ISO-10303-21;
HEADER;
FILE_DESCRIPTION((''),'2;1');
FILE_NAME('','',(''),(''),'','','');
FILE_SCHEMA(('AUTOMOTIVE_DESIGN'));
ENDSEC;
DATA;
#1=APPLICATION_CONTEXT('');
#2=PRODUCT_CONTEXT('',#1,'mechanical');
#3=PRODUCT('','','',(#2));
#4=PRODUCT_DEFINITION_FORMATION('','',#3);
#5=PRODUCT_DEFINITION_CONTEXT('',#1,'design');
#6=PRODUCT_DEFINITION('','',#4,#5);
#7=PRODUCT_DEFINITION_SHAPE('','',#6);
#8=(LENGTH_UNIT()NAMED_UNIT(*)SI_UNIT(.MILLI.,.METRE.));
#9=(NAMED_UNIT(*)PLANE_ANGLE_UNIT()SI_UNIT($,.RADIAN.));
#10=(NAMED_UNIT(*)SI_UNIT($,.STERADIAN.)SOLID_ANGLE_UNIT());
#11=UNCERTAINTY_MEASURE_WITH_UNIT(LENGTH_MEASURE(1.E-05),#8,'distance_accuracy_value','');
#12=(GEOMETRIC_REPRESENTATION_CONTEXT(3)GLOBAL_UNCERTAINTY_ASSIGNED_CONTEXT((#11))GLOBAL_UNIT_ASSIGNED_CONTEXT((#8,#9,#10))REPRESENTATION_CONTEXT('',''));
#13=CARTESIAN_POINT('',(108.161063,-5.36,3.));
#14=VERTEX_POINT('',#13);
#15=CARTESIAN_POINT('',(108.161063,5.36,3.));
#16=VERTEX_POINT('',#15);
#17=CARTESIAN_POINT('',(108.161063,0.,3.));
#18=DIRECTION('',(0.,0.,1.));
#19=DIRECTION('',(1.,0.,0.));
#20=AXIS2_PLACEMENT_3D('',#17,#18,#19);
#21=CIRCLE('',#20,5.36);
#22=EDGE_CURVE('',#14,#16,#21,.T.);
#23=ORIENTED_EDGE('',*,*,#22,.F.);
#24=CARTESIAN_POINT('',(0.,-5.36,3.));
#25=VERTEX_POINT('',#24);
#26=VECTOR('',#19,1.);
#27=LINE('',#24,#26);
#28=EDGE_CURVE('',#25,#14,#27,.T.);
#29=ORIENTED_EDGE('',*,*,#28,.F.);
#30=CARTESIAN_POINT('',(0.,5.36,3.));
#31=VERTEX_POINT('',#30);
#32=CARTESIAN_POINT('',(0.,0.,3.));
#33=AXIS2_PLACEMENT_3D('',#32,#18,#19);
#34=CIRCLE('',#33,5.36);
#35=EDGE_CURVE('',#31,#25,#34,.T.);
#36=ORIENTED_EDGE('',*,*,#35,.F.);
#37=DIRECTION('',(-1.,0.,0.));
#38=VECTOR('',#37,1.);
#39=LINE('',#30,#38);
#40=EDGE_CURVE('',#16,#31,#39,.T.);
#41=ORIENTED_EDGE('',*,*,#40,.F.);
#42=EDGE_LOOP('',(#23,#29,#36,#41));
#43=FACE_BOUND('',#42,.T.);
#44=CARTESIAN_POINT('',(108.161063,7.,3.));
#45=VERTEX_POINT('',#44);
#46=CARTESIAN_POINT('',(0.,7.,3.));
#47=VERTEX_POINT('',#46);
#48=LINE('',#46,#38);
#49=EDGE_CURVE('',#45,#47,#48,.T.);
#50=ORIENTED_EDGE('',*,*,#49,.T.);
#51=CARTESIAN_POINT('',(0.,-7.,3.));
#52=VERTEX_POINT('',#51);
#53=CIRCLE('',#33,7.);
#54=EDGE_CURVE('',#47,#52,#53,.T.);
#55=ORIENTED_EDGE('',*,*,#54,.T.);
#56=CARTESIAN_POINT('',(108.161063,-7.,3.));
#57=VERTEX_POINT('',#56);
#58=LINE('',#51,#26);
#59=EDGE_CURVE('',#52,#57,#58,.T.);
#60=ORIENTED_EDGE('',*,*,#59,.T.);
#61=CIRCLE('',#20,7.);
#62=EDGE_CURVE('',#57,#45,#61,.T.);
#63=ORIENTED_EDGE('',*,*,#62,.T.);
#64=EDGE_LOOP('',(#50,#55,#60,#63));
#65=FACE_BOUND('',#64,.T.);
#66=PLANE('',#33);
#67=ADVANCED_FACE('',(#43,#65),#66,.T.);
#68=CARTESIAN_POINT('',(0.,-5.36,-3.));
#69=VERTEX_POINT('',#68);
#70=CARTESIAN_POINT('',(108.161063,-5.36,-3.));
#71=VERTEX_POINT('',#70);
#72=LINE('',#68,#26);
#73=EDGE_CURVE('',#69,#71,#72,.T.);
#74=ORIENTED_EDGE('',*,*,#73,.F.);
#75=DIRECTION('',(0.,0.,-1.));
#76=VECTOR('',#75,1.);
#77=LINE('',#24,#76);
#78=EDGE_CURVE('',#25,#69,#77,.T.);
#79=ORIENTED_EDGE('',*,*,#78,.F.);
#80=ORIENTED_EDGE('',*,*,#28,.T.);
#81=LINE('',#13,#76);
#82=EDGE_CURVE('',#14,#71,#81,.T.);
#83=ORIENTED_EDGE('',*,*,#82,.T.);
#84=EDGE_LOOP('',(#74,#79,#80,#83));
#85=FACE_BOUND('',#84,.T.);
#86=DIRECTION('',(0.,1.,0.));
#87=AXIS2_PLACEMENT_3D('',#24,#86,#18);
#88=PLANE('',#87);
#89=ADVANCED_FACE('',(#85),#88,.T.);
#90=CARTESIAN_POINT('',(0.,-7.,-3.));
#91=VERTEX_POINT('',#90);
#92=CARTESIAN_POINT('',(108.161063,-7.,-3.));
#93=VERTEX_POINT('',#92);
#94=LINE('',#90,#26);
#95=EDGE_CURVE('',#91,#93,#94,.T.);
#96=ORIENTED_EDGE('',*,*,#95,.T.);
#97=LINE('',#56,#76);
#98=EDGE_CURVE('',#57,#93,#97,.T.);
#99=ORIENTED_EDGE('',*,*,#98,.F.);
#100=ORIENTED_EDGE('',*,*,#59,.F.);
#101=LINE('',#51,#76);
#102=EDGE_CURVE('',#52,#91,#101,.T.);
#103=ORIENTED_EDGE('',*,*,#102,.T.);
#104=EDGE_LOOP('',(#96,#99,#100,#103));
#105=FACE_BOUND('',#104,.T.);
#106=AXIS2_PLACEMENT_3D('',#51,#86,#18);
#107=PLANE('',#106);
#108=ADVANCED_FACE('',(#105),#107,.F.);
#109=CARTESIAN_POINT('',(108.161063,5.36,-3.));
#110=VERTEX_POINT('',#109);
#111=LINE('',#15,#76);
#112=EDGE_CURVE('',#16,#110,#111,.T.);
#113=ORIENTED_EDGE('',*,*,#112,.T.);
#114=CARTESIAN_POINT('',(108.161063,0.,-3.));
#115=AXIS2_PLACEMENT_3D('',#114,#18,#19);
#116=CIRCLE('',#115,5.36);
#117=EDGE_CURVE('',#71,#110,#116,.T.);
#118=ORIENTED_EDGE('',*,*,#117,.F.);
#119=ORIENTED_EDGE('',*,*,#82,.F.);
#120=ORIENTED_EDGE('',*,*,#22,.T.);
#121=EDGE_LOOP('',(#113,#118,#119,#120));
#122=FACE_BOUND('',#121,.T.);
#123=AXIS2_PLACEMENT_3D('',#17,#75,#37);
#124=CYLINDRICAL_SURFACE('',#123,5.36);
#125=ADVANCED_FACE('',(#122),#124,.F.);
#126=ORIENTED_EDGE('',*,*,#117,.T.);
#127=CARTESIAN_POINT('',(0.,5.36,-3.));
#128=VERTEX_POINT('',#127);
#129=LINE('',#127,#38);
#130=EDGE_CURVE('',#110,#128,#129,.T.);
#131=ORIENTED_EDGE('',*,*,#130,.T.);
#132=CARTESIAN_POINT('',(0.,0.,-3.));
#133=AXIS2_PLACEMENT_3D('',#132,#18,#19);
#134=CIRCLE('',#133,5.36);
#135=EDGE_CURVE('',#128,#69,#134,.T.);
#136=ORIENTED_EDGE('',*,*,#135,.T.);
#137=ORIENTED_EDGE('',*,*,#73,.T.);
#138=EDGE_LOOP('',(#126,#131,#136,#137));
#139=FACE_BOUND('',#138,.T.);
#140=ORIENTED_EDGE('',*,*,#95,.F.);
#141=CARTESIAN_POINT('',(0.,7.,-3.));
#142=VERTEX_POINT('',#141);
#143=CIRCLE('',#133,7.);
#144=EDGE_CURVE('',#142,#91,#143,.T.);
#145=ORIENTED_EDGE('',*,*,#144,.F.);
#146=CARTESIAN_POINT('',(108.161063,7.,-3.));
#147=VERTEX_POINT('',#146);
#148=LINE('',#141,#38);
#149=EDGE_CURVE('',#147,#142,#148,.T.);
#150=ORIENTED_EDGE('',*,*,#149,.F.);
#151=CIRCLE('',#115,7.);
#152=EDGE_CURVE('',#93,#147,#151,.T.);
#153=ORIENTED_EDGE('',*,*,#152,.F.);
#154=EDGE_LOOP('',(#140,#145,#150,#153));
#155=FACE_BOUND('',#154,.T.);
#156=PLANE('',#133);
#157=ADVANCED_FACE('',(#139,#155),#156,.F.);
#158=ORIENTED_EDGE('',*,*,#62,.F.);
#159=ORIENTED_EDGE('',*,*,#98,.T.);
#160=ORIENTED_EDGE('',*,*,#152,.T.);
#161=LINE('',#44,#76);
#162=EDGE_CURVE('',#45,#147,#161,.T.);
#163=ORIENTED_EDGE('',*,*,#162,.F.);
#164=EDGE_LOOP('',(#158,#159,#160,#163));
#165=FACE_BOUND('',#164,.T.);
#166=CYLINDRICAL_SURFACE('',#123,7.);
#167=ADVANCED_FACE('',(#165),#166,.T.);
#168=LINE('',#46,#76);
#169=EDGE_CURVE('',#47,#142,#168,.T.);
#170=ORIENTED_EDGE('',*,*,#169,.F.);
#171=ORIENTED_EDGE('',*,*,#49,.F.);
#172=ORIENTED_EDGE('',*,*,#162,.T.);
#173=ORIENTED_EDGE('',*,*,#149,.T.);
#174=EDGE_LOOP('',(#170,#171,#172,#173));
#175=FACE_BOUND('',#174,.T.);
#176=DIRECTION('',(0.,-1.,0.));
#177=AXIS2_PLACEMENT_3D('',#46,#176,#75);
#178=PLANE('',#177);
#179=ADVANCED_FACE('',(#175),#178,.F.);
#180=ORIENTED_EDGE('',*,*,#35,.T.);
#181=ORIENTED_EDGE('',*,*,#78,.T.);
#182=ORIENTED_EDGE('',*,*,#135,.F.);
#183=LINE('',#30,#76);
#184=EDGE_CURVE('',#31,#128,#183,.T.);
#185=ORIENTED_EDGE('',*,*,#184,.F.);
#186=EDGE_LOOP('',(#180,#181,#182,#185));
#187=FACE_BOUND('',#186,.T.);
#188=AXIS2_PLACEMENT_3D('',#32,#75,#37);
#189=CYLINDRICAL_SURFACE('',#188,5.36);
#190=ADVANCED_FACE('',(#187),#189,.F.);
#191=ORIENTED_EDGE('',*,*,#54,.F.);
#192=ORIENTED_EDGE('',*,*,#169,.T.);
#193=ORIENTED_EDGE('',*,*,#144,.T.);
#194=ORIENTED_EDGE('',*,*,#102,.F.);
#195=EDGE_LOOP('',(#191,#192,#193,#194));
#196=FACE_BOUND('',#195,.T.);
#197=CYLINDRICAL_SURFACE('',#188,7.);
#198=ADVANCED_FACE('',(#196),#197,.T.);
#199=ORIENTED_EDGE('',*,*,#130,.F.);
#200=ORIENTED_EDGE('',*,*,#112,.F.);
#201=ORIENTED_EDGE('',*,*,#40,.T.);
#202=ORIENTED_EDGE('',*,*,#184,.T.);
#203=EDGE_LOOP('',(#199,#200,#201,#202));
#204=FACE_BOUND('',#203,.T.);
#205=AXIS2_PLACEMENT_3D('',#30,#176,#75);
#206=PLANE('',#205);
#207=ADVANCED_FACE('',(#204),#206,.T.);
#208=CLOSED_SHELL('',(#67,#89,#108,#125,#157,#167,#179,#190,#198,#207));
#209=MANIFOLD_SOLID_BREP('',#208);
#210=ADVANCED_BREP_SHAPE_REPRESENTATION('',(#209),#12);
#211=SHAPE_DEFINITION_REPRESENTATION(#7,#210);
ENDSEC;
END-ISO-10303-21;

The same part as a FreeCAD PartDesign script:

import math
import FreeCAD as App
import Part
import Sketcher

V = App.Vector

doc = App.newDocument("Part")
params = doc.addObject("Spreadsheet::Sheet", "Params")
for row, (alias, value) in enumerate([
    ("sketch1_radius", "7 mm"),
    ("sketch1_radius2", "5.36 mm"),
    ("pad1_length", "6 mm"),
], start=1):
    params.set(f"A{row}", alias)
    params.set(f"B{row}", "=" + value)
    params.setAlias(f"B{row}", alias)

body = doc.addObject("PartDesign::Body", "Body")

# Sketch on XY plane
sketch1 = doc.addObject("Sketcher::SketchObject", "Sketch")
body.addObject(sketch1)
sketch1.AttachmentSupport = (doc.XY_Plane, [""])
sketch1.MapMode = "FlatFace"
sketch1.addGeometry([
    Part.LineSegment(V(108, 7, 0), V(0, 7, 0)),  # 0
    Part.ArcOfCircle(Part.Circle(V(0, 0, 0), V(0, 0, 1), 7), math.radians(90), math.radians(270)),  # 1
    Part.LineSegment(V(0, -7, 0), V(108, -7, 0)),  # 2
    Part.ArcOfCircle(Part.Circle(V(108, 0, 0), V(0, 0, 1), 7), math.radians(-90), math.radians(90)),  # 3
    Part.LineSegment(V(0, 5, 0), V(108, 5, 0)),  # 4
    Part.ArcOfCircle(Part.Circle(V(108, 0, 0), V(0, 0, 1), 5), math.radians(-90), math.radians(90)),  # 5
    Part.LineSegment(V(108, -5, 0), V(0, -5, 0)),  # 6
    Part.ArcOfCircle(Part.Circle(V(0, 0, 0), V(0, 0, 1), 5), math.radians(90), math.radians(270)),  # 7
], False)
sketch1.addConstraint([
    Sketcher.Constraint("Tangent", 0, 2, 1, 1),
    Sketcher.Constraint("Tangent", 1, 2, 2, 1),
    Sketcher.Constraint("Tangent", 2, 2, 3, 1),
    Sketcher.Constraint("Tangent", 3, 2, 0, 1),
    Sketcher.Constraint("Tangent", 4, 2, 5, 2),
    Sketcher.Constraint("Tangent", 5, 1, 6, 1),
    Sketcher.Constraint("Tangent", 6, 2, 7, 2),
    Sketcher.Constraint("Tangent", 7, 1, 4, 1),
    Sketcher.Constraint("Horizontal", 0),
    Sketcher.Constraint("Horizontal", 2),
    Sketcher.Constraint("Horizontal", 4),
    Sketcher.Constraint("Horizontal", 6),
    Sketcher.Constraint("Coincident", 1, 3, -1, 1),
    Sketcher.Constraint("Coincident", 7, 3, -1, 1),
    Sketcher.Constraint("Vertical", 5, 3, 2, 2),
    Sketcher.Constraint("Radius", 1, 7.0),
    Sketcher.Constraint("Radius", 5, 5.36),
    Sketcher.Constraint("DistanceX", 0, 2, 0, 1, 108.161063),
])
sketch1.setExpression("Constraints[15]", "Params.sketch1_radius")
sketch1.setExpression("Constraints[16]", "Params.sketch1_radius2")
pad1 = doc.addObject("PartDesign::Pad", "Pad")
body.addObject(pad1)
pad1.Profile = sketch1
pad1.setExpression("Length", "Params.pad1_length")
pad1.Midplane = True

doc.recompute()
